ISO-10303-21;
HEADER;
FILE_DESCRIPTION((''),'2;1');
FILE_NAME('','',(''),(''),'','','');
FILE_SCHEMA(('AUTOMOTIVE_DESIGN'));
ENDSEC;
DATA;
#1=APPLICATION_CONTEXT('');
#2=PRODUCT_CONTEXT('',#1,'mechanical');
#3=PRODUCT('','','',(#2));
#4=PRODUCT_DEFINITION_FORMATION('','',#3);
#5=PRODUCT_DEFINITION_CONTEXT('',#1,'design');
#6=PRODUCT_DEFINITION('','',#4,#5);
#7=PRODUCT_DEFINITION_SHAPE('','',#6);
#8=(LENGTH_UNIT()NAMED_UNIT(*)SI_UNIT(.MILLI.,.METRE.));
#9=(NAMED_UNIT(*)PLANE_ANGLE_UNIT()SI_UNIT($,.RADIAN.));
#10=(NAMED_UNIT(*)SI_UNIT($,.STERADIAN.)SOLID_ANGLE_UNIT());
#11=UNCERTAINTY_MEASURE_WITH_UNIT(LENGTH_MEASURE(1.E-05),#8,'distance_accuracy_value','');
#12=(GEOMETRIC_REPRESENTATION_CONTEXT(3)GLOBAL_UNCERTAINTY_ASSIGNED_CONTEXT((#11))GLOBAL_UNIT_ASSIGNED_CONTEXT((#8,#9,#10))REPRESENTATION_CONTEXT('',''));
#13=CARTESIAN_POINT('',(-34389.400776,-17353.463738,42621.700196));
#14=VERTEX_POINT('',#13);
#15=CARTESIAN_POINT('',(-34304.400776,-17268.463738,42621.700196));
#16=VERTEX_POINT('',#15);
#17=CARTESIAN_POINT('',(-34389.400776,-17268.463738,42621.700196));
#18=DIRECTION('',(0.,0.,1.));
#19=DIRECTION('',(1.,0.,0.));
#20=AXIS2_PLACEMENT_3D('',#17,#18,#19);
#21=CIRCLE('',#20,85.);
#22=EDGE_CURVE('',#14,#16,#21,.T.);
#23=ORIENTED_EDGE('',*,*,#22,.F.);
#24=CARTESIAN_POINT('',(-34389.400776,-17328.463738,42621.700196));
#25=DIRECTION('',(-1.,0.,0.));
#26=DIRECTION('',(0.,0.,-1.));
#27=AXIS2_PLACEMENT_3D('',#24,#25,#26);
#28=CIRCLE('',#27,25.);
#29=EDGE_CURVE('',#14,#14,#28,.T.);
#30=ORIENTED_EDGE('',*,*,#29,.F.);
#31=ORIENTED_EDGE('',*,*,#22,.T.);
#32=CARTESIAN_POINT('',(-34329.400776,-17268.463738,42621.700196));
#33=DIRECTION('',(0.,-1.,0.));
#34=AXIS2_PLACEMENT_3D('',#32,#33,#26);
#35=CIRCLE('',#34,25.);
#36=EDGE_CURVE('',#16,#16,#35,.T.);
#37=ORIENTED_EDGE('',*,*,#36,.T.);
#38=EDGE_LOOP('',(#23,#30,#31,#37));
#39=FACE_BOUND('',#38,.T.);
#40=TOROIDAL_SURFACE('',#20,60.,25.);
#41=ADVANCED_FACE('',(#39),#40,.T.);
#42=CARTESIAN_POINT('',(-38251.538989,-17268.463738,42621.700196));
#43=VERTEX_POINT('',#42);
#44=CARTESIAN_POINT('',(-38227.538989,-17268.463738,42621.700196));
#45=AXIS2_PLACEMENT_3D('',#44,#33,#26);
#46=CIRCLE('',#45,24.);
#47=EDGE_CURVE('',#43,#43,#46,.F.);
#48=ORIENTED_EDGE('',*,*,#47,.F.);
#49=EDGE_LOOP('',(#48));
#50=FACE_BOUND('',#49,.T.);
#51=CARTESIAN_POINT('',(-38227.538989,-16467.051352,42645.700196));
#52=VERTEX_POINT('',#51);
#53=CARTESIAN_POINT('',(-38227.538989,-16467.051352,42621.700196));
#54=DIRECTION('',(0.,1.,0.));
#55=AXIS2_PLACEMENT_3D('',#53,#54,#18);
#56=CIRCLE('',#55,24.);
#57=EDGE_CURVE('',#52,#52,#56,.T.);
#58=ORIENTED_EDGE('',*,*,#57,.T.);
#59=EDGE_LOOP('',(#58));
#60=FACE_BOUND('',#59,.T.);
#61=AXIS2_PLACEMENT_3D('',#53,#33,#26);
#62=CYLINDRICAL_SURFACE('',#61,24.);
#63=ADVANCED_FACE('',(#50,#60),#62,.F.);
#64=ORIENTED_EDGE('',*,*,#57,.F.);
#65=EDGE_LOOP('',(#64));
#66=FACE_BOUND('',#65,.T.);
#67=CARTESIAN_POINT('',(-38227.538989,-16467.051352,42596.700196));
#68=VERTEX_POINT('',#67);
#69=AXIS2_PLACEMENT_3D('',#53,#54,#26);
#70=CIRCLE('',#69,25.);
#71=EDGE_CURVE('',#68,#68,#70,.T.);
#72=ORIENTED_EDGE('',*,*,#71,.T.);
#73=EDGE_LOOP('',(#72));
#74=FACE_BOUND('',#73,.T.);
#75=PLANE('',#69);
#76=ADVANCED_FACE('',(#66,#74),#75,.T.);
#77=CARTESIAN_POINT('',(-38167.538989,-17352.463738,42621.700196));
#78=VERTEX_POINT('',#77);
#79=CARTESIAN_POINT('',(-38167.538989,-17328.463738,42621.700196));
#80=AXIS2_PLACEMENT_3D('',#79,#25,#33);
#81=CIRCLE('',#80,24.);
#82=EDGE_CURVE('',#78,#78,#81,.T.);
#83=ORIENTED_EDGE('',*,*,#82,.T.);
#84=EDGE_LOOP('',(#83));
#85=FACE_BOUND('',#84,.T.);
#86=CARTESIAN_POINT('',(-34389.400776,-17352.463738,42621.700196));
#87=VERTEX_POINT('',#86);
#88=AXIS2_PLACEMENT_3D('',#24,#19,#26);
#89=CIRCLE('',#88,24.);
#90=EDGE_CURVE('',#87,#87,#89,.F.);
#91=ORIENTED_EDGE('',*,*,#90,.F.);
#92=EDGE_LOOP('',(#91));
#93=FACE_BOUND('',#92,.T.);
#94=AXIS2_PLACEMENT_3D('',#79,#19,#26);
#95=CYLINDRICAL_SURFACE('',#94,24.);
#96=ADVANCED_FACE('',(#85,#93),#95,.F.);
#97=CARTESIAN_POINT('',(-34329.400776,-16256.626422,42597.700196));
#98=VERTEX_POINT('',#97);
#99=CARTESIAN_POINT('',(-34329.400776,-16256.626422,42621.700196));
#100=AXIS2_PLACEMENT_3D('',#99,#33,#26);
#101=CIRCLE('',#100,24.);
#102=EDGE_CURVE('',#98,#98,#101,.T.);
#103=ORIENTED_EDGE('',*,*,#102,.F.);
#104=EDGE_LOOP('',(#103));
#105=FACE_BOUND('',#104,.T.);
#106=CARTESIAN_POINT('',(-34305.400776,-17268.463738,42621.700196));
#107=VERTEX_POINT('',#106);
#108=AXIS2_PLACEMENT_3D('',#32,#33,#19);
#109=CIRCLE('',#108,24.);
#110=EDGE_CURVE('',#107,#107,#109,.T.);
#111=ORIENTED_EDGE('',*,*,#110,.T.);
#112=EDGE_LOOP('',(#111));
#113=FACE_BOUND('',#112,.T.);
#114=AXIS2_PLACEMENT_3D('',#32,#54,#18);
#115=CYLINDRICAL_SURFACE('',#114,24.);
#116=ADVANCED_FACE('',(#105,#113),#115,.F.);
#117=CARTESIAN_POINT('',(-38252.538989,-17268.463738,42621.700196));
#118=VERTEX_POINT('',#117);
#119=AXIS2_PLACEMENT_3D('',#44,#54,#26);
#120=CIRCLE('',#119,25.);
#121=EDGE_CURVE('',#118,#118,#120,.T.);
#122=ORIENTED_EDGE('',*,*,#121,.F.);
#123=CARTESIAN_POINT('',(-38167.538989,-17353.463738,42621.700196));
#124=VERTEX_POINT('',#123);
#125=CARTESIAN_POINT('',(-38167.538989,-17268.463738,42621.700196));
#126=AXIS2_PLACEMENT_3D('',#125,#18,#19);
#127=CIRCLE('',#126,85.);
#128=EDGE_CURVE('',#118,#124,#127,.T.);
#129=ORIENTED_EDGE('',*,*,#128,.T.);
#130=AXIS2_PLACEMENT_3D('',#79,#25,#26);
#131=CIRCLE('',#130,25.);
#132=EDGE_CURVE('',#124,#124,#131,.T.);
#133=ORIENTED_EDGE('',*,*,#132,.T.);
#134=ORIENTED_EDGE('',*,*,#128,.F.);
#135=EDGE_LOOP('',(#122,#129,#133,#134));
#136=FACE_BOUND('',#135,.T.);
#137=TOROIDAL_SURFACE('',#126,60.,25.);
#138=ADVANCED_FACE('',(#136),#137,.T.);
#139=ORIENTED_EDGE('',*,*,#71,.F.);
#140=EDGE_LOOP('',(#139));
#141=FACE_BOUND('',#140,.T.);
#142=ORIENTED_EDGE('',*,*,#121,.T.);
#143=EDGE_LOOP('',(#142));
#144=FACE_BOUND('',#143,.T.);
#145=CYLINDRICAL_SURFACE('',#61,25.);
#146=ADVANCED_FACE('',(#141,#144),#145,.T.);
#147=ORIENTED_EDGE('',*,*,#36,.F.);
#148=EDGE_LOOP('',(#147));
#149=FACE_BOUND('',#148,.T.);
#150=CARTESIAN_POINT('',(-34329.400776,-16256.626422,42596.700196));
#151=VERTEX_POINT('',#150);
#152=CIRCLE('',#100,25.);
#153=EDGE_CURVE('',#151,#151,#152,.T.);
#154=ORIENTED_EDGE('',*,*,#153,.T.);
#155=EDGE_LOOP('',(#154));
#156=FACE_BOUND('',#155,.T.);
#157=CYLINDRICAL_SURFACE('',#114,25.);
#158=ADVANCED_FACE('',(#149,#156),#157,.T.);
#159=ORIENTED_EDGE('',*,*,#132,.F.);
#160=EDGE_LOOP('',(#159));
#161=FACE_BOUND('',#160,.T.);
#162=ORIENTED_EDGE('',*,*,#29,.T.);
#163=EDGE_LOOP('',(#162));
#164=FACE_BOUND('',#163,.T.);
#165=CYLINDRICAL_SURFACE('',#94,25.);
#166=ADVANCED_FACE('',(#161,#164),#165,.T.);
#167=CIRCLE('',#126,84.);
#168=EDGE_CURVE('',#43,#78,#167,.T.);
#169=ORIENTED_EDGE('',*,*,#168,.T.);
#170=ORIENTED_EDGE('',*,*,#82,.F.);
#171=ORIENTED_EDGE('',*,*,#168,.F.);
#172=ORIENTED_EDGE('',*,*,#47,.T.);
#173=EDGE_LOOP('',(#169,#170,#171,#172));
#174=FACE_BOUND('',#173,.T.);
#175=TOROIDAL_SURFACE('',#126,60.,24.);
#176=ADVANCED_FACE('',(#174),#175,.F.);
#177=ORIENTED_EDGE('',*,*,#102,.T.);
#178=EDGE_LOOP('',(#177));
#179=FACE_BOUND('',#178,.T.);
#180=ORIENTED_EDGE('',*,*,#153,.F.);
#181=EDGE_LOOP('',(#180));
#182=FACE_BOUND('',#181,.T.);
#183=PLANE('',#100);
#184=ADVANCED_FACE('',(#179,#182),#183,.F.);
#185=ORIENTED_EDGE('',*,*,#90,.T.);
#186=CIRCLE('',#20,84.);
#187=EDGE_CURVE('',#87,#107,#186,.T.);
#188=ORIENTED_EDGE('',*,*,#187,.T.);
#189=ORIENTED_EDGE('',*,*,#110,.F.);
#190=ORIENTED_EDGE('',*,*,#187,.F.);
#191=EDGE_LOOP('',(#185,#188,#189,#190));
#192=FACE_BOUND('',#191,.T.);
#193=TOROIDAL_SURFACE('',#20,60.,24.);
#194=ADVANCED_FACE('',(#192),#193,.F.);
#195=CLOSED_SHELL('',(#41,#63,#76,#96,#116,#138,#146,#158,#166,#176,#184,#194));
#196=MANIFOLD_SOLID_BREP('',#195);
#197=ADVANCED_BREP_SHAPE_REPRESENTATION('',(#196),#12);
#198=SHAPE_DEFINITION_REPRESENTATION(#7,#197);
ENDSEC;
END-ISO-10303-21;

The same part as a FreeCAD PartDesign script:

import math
import FreeCAD as App
import Part
import Sketcher

V = App.Vector
Q = App.Units.Quantity

doc = App.newDocument("Part")
body = doc.addObject("PartDesign::Body", "Body")

sketch1 = body.newObject("Sketcher::SketchObject", "Sketch")
sketch1.AttachmentSupport = (doc.getObject("XZ_Plane"), [""])
sketch1.MapMode = "FlatFace"
sketch1.AttachmentOffset = App.Placement(V(0, 0, 16467.051352), App.Rotation())
sketch1.addGeometry(Part.Circle(V(-38228, 42622, 0), V(0, 0, 1), 25), False)
sketch1.addGeometry(Part.Circle(V(-38228, 42622, 0), V(0, 0, 1), 24), False)
sketch1.addConstraint(Sketcher.Constraint("Coincident", 1, 3, 0, 3))
sketch1.addConstraint(Sketcher.Constraint("Diameter", 0, Q("50 mm")))
sketch1.addConstraint(Sketcher.Constraint("Diameter", 1, Q("48 mm")))
sketch1.addConstraint(Sketcher.Constraint("DistanceX", 0, 3, -1, 1, Q("38227.538989 mm")))
sketch1.addConstraint(Sketcher.Constraint("DistanceY", -1, 1, 0, 3, Q("42621.700196 mm")))

sketch2 = body.newObject("Sketcher::SketchObject", "Sketch001")
sketch2.AttachmentSupport = (doc.getObject("XY_Plane"), [""])
sketch2.MapMode = "FlatFace"
sketch2.AttachmentOffset = App.Placement(V(0, 0, 42621.700196), App.Rotation())
sketch2.addGeometry(Part.LineSegment(V(-38227.538989, -16467.051352, 0), V(-38227.538989, -17268.463738, 0)), False)
sketch2.addGeometry(Part.ArcOfCircle(Part.Circle(V(-38167.538989, -17268.463738, 0), V(0, 0, 1), 60), math.radians(-180), math.radians(-90)), False)
sketch2.addGeometry(Part.LineSegment(V(-38167.538989, -17328.463738, 0), V(-34389.400776, -17328.463738, 0)), False)
sketch2.addGeometry(Part.ArcOfCircle(Part.Circle(V(-34389.400776, -17268.463738, 0), V(0, 0, 1), 60), math.radians(-90), math.radians(0)), False)
sketch2.addGeometry(Part.LineSegment(V(-34329.400776, -17268.463738, 0), V(-34329.400776, -16256.626422, 0)), False)
sketch2.addConstraint(Sketcher.Constraint("Tangent", 0, 2, 1, 1))
sketch2.addConstraint(Sketcher.Constraint("Tangent", 1, 2, 2, 1))
sketch2.addConstraint(Sketcher.Constraint("Tangent", 2, 2, 3, 1))
sketch2.addConstraint(Sketcher.Constraint("Tangent", 3, 2, 4, 1))
sketch2.addConstraint(Sketcher.Constraint("Vertical", 0))
sketch2.addConstraint(Sketcher.Constraint("Horizontal", 2))
sketch2.addConstraint(Sketcher.Constraint("Vertical", 4))
sketch2.addConstraint(Sketcher.Constraint("Equal", 1, 3))
sketch2.addConstraint(Sketcher.Constraint("Radius", 1, Q("60 mm")))
sketch2.addConstraint(Sketcher.Constraint("DistanceX", 2, 1, 2, 2, Q("3778.138214 mm")))
sketch2.addConstraint(Sketcher.Constraint("DistanceY", 0, 2, 0, 1, Q("801.412386 mm")))
sketch2.addConstraint(Sketcher.Constraint("DistanceY", 4, 1, 4, 2, Q("1011.837316 mm")))
sketch2.addConstraint(Sketcher.Constraint("DistanceX", 1, 3, -1, 1, Q("38167.538989 mm")))
sketch2.addConstraint(Sketcher.Constraint("DistanceY", 0, 1, -1, 1, Q("16467.051352 mm")))
doc.recompute()

additivepipe = body.newObject("PartDesign::AdditivePipe", "AdditivePipe")
additivepipe.Profile = sketch1
additivepipe.Spine = (sketch2, ["Edge1", "Edge2", "Edge3", "Edge4", "Edge5"])

doc.recompute()
